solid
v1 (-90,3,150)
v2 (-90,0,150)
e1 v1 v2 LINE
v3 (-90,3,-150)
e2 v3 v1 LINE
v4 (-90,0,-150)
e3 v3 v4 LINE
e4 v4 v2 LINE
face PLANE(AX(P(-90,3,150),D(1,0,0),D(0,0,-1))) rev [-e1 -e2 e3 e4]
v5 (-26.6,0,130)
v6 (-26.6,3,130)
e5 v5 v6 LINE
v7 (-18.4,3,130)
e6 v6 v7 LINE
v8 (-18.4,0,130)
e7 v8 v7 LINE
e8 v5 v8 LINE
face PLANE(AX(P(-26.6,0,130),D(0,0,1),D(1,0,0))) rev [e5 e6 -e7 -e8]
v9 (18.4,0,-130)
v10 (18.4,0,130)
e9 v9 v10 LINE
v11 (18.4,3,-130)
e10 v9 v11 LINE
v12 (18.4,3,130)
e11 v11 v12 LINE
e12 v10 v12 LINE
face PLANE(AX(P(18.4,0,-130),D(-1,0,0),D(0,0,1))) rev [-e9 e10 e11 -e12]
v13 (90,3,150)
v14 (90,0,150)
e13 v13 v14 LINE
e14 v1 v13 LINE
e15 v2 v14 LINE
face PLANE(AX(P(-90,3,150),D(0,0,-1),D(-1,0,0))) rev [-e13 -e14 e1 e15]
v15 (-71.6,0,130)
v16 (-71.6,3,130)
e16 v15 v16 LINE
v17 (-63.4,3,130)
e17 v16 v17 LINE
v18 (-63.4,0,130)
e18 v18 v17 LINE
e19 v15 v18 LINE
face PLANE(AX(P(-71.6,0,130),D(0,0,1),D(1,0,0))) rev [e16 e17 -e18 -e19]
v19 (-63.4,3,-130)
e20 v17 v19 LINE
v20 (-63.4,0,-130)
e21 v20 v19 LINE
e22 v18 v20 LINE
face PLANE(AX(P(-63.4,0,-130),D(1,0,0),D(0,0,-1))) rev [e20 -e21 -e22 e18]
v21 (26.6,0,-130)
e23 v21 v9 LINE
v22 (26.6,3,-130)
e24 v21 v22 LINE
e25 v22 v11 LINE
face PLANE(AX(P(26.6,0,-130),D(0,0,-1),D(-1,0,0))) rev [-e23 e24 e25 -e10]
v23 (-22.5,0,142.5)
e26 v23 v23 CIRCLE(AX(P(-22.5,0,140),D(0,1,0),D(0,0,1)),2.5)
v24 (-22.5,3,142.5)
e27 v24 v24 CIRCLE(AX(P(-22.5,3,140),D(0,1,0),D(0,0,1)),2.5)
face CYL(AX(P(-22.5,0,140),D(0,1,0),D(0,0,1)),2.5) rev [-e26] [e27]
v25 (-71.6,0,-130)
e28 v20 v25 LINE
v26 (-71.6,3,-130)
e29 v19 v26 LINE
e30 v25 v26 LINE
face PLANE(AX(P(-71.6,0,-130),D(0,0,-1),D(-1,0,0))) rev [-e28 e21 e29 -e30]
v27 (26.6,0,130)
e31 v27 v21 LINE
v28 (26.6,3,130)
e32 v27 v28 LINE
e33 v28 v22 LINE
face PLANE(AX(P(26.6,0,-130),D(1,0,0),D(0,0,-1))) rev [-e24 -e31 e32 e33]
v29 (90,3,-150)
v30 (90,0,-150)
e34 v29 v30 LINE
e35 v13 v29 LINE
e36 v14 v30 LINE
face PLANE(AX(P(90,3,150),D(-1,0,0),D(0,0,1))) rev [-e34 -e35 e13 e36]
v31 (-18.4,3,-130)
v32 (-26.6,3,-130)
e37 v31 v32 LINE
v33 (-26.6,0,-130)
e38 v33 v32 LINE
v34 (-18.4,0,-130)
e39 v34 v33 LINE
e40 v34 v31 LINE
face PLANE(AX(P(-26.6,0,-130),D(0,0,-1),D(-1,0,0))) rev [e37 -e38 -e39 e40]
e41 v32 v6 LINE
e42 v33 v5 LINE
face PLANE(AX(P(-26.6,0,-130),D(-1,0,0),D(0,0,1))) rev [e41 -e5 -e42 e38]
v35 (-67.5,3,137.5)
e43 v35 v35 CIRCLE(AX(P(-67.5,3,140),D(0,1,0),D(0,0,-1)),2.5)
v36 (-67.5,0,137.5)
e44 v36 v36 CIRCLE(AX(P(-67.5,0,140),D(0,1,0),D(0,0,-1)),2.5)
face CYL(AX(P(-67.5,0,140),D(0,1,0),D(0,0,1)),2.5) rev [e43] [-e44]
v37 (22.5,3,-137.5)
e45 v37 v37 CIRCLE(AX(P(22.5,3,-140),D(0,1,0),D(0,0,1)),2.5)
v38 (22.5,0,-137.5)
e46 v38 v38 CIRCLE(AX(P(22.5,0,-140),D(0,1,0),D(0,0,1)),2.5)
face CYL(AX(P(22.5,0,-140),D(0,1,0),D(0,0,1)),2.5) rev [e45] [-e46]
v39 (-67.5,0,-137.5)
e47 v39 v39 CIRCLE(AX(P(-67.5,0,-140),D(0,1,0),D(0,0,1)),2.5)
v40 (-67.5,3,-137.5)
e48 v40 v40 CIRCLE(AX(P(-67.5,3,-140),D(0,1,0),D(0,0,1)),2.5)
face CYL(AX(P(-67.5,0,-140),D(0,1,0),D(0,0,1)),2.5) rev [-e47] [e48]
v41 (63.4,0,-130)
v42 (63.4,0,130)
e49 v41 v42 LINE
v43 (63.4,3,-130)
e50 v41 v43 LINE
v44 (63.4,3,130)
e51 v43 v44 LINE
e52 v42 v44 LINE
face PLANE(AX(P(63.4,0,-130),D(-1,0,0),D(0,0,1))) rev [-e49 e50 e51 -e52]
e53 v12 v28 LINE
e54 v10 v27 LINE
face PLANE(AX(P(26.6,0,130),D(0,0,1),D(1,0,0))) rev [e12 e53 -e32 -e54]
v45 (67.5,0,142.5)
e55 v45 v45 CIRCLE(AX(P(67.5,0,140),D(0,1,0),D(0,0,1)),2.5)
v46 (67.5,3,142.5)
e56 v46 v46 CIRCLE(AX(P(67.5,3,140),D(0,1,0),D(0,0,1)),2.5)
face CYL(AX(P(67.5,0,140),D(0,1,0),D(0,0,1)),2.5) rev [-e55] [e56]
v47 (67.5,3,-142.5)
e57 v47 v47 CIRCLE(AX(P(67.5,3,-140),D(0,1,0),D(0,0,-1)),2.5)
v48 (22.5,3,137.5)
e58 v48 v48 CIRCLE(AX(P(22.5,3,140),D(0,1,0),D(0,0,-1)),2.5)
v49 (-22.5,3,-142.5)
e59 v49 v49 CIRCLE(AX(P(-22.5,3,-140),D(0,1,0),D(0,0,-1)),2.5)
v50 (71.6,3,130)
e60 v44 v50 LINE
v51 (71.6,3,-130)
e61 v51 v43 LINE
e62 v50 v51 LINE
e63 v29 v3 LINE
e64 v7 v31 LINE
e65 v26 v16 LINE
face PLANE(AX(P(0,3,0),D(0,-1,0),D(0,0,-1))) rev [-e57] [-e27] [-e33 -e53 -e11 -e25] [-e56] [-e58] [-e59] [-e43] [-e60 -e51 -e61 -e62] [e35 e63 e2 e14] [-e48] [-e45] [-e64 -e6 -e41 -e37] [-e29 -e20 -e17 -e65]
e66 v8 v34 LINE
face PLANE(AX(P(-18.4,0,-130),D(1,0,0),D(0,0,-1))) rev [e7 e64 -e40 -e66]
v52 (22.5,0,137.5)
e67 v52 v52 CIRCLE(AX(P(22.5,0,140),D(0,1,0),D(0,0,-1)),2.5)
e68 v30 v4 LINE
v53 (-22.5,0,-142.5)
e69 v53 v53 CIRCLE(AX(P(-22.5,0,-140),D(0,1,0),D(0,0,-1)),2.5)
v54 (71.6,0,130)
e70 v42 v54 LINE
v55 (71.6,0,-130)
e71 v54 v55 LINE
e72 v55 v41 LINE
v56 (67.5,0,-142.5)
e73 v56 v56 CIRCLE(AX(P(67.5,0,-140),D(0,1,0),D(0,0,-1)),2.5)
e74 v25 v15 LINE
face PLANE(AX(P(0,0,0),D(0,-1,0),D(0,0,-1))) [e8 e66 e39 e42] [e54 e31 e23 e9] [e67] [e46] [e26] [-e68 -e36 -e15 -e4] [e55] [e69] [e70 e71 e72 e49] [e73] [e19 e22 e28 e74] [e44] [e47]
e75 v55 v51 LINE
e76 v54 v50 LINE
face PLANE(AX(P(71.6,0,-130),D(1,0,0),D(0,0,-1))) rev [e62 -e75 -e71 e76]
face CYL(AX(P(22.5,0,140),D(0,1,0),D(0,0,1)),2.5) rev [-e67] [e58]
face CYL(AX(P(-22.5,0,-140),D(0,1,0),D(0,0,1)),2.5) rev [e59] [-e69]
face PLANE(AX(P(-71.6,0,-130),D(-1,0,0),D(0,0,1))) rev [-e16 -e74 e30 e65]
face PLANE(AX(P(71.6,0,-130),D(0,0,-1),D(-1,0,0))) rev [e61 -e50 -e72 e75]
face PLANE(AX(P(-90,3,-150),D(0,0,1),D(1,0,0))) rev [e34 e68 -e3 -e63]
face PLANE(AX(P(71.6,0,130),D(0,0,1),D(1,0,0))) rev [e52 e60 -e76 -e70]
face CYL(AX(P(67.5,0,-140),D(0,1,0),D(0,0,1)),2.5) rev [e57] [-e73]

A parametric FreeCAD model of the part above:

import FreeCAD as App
import Part
import Sketcher

V = App.Vector

doc = App.newDocument("Part")
body = doc.addObject("PartDesign::Body", "Body")

sketch1 = body.newObject("Sketcher::SketchObject", "Sketch")
sketch1.AttachmentSupport = (doc.getObject("XZ_Plane"), [""])
sketch1.MapMode = "FlatFace"
sketch1.addGeometry(Part.LineSegment(V(-90, -150, 0), V(-90, 150, 0)), False)
sketch1.addGeometry(Part.LineSegment(V(-90, 150, 0), V(90, 150, 0)), False)
sketch1.addGeometry(Part.LineSegment(V(90, 150, 0), V(90, -150, 0)), False)
sketch1.addGeometry(Part.LineSegment(V(90, -150, 0), V(-90, -150, 0)), False)
sketch1.addConstraint(Sketcher.Constraint("Coincident", 0, 2, 1, 1))
sketch1.addConstraint(Sketcher.Constraint("Coincident", 1, 2, 2, 1))
sketch1.addConstraint(Sketcher.Constraint("Coincident", 2, 2, 3, 1))
sketch1.addConstraint(Sketcher.Constraint("Coincident", 3, 2, 0, 1))
sketch1.addConstraint(Sketcher.Constraint("Vertical", 0))
sketch1.addConstraint(Sketcher.Constraint("Horizontal", 1))
sketch1.addConstraint(Sketcher.Constraint("Vertical", 2))
sketch1.addConstraint(Sketcher.Constraint("Horizontal", 3))
sketch1.addConstraint(Sketcher.Constraint("Symmetric", 0, 2, 2, 2, -1, 1))
sketch1.addConstraint(Sketcher.Constraint("DistanceX", 1, 1, 1, 2, 180.0))
sketch1.addConstraint(Sketcher.Constraint("DistanceY", 0, 1, 0, 2, 300.0))
pad1 = body.newObject("PartDesign::Pad", "Pad")
pad1.Profile = sketch1
pad1.Length = 3
pad1.Reversed = True

sketch2 = body.newObject("Sketcher::SketchObject", "Sketch001")
sketch2.AttachmentSupport = (doc.getObject("XZ_Plane"), [""])
sketch2.MapMode = "FlatFace"
sketch2.AttachmentOffset = App.Placement(V(0, 0, -3), App.Rotation())
sketch2.addGeometry(Part.LineSegment(V(-72, -130, 0), V(-72, 130, 0)), False)
sketch2.addGeometry(Part.LineSegment(V(-72, 130, 0), V(-63, 130, 0)), False)
sketch2.addGeometry(Part.LineSegment(V(-63, 130, 0), V(-63, -130, 0)), False)
sketch2.addGeometry(Part.LineSegment(V(-63, -130, 0), V(-72, -130, 0)), False)
sketch2.addGeometry(Part.LineSegment(V(-27, -130, 0), V(-27, 130, 0)), False)
sketch2.addGeometry(Part.LineSegment(V(-27, 130, 0), V(-18, 130, 0)), False)
sketch2.addGeometry(Part.LineSegment(V(-18, 130, 0), V(-18, -130, 0)), False)
sketch2.addGeometry(Part.LineSegment(V(-18, -130, 0), V(-27, -130, 0)), False)
sketch2.addGeometry(Part.LineSegment(V(18, -130, 0), V(18, 130, 0)), False)
sketch2.addGeometry(Part.LineSegment(V(18, 130, 0), V(27, 130, 0)), False)
sketch2.addGeometry(Part.LineSegment(V(27, 130, 0), V(27, -130, 0)), False)
sketch2.addGeometry(Part.LineSegment(V(27, -130, 0), V(18, -130, 0)), False)
sketch2.addGeometry(Part.LineSegment(V(63, -130, 0), V(63, 130, 0)), False)
sketch2.addGeometry(Part.LineSegment(V(63, 130, 0), V(72, 130, 0)), False)
sketch2.addGeometry(Part.LineSegment(V(72, 130, 0), V(72, -130, 0)), False)
sketch2.addGeometry(Part.LineSegment(V(72, -130, 0), V(63, -130, 0)), False)
sketch2.addConstraint(Sketcher.Constraint("Coincident", 0, 2, 1, 1))
sketch2.addConstraint(Sketcher.Constraint("Coincident", 1, 2, 2, 1))
sketch2.addConstraint(Sketcher.Constraint("Coincident", 2, 2, 3, 1))
sketch2.addConstraint(Sketcher.Constraint("Coincident", 3, 2, 0, 1))
sketch2.addConstraint(Sketcher.Constraint("Coincident", 4, 2, 5, 1))
sketch2.addConstraint(Sketcher.Constraint("Coincident", 5, 2, 6, 1))
sketch2.addConstraint(Sketcher.Constraint("Coincident", 6, 2, 7, 1))
sketch2.addConstraint(Sketcher.Constraint("Coincident", 7, 2, 4, 1))
sketch2.addConstraint(Sketcher.Constraint("Coincident", 8, 2, 9, 1))
sketch2.addConstraint(Sketcher.Constraint("Coincident", 9, 2, 10, 1))
sketch2.addConstraint(Sketcher.Constraint("Coincident", 10, 2, 11, 1))
sketch2.addConstraint(Sketcher.Constraint("Coincident", 11, 2, 8, 1))
sketch2.addConstraint(Sketcher.Constraint("Coincident", 12, 2, 13, 1))
sketch2.addConstraint(Sketcher.Constraint("Coincident", 13, 2, 14, 1))
sketch2.addConstraint(Sketcher.Constraint("Coincident", 14, 2, 15, 1))
sketch2.addConstraint(Sketcher.Constraint("Coincident", 15, 2, 12, 1))
sketch2.addConstraint(Sketcher.Constraint("Vertical", 0))
sketch2.addConstraint(Sketcher.Constraint("Horizontal", 1))
sketch2.addConstraint(Sketcher.Constraint("Vertical", 2))
sketch2.addConstraint(Sketcher.Constraint("Horizontal", 3))
sketch2.addConstraint(Sketcher.Constraint("Vertical", 4))
sketch2.addConstraint(Sketcher.Constraint("Horizontal", 5))
sketch2.addConstraint(Sketcher.Constraint("Vertical", 6))
sketch2.addConstraint(Sketcher.Constraint("Horizontal", 7))
sketch2.addConstraint(Sketcher.Constraint("Vertical", 8))
sketch2.addConstraint(Sketcher.Constraint("Horizontal", 9))
sketch2.addConstraint(Sketcher.Constraint("Vertical", 10))
sketch2.addConstraint(Sketcher.Constraint("Horizontal", 11))
sketch2.addConstraint(Sketcher.Constraint("Vertical", 12))
sketch2.addConstraint(Sketcher.Constraint("Horizontal", 13))
sketch2.addConstraint(Sketcher.Constraint("Vertical", 14))
sketch2.addConstraint(Sketcher.Constraint("Horizontal", 15))
sketch2.addConstraint(Sketcher.Constraint("Symmetric", 6, 2, 8, 2, -1, 1))
sketch2.addConstraint(Sketcher.Constraint("Symmetric", 4, 2, 10, 2, -1, 1))
sketch2.addConstraint(Sketcher.Constraint("Symmetric", 2, 2, 12, 2, -1, 1))
sketch2.addConstraint(Sketcher.Constraint("Symmetric", 0, 2, 14, 2, -1, 1))
sketch2.addConstraint(Sketcher.Constraint("Horizontal", 1, 2, 4, 2))
sketch2.addConstraint(Sketcher.Constraint("Horizontal", 3, 2, 6, 2))
sketch2.addConstraint(Sketcher.Constraint("Horizontal", 5, 2, 8, 2))
sketch2.addConstraint(Sketcher.Constraint("Equal", 3, 5))
sketch2.addConstraint(Sketcher.Constraint("DistanceY", 0, 1, 0, 2, 260.0))
sketch2.addConstraint(Sketcher.Constraint("DistanceX", 1, 1, 1, 2, 8.2))
sketch2.addConstraint(Sketcher.Constraint("DistanceX", 0, 2, 4, 2, 45.0))
sketch2.addConstraint(Sketcher.Constraint("DistanceX", 4, 2, 8, 2, 45.0))
pocket1 = body.newObject("PartDesign::Pocket", "Pocket")
pocket1.Profile = sketch2
pocket1.Type = "ThroughAll"
pocket1.Reversed = True

sketch3 = body.newObject("Sketcher::SketchObject", "Sketch002")
sketch3.AttachmentSupport = (doc.getObject("XZ_Plane"), [""])
sketch3.MapMode = "FlatFace"
sketch3.AttachmentOffset = App.Placement(V(0, 0, -3), App.Rotation())
sketch3.addGeometry(Part.Circle(V(67.5, 140, 0), V(0, 0, 1), 2.5), False)
sketch3.addGeometry(Part.Circle(V(-67.5, 140, 0), V(0, 0, 1), 2.5), False)
sketch3.addGeometry(Part.Circle(V(67.5, -140, 0), V(0, 0, 1), 2.5), False)
sketch3.addGeometry(Part.Circle(V(-67.5, -140, 0), V(0, 0, 1), 2.5), False)
sketch3.addGeometry(Part.Circle(V(-22.5, 140, 0), V(0, 0, 1), 2.5), False)
sketch3.addGeometry(Part.Circle(V(22.5, 140, 0), V(0, 0, 1), 2.5), False)
sketch3.addGeometry(Part.Circle(V(22.5, -140, 0), V(0, 0, 1), 2.5), False)
sketch3.addGeometry(Part.Circle(V(-22.5, -140, 0), V(0, 0, 1), 2.5), False)
sketch3.addConstraint(Sketcher.Constraint("Equal", 0, 1))
sketch3.addConstraint(Sketcher.Constraint("Equal", 1, 2))
sketch3.addConstraint(Sketcher.Constraint("Equal", 2, 3))
sketch3.addConstraint(Sketcher.Constraint("Equal", 3, 4))
sketch3.addConstraint(Sketcher.Constraint("Equal", 4, 5))
sketch3.addConstraint(Sketcher.Constraint("Equal", 5, 6))
sketch3.addConstraint(Sketcher.Constraint("Equal", 6, 7))
sketch3.addConstraint(Sketcher.Constraint("Symmetric", 1, 3, 2, 3, -1, 1))
sketch3.addConstraint(Sketcher.Constraint("Symmetric", 0, 3, 3, 3, -1, 1))
sketch3.addConstraint(Sketcher.Constraint("Symmetric", 4, 3, 6, 3, -1, 1))
sketch3.addConstraint(Sketcher.Constraint("Symmetric", 5, 3, 7, 3, -1, 1))
sketch3.addConstraint(Sketcher.Constraint("Symmetric", 0, 3, 1, 3, -2))
sketch3.addConstraint(Sketcher.Constraint("Symmetric", 4, 3, 5, 3, -2))
sketch3.addConstraint(Sketcher.Constraint("Horizontal", 1, 3, 4, 3))
sketch3.addConstraint(Sketcher.Constraint("Diameter", 0, 5.0))
sketch3.addConstraint(Sketcher.Constraint("DistanceY", -1, 1, 0, 3, 140.0))
sketch3.addConstraint(Sketcher.Constraint("DistanceX", 1, 3, 0, 3, 135.0))
sketch3.addConstraint(Sketcher.Constraint("DistanceX", 1, 3, 4, 3, 45.0))
pocket2 = body.newObject("PartDesign::Pocket", "Pocket001")
pocket2.Profile = sketch3
pocket2.Type = "ThroughAll"
pocket2.Reversed = True

doc.recompute()
